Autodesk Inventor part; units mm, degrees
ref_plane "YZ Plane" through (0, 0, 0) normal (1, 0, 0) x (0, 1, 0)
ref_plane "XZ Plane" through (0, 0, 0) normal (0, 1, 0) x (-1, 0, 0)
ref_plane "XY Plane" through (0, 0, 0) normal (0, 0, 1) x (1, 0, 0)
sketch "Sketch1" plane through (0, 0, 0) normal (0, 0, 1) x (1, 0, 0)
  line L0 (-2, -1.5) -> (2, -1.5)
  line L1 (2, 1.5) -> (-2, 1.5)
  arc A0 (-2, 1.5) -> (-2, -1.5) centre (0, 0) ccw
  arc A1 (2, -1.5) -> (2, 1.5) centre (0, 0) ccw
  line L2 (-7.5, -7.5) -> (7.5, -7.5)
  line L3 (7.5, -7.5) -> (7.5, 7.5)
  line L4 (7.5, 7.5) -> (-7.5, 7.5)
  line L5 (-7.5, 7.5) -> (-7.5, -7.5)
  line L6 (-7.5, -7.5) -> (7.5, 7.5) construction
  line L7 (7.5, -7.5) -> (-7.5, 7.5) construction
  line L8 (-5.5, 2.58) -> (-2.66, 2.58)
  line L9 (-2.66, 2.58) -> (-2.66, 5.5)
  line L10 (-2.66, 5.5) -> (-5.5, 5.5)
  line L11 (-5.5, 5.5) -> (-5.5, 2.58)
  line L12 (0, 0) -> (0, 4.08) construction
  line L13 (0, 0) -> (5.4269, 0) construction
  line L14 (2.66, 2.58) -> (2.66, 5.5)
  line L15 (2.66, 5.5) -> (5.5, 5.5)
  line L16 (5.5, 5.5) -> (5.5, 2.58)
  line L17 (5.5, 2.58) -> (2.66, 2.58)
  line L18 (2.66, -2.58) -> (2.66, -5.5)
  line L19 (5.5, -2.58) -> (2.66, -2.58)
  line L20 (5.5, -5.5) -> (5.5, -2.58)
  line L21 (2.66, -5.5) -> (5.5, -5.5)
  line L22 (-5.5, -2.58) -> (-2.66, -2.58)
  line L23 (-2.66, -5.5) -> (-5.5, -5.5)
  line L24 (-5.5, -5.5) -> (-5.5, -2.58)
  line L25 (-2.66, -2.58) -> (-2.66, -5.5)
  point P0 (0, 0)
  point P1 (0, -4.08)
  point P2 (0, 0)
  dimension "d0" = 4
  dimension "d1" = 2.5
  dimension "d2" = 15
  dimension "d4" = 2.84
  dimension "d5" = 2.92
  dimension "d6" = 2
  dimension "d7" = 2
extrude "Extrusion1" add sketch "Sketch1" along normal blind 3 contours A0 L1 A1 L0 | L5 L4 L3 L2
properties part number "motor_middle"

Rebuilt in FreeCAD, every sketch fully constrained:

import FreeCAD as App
import Part
import Sketcher


def add_polygon(sketch, points):
    """Adds a closed chain of lines whose ends are joined by coincident constraints."""
    first, n = sketch.GeometryCount, len(points)
    for a, b in zip(points, points[1:] + points[:1]):
        sketch.addGeometry(Part.LineSegment(App.Vector(*a, 0), App.Vector(*b, 0)), False)
    for i in range(n):
        sketch.addConstraint(Sketcher.Constraint("Coincident", first + i, 2, first + (i + 1) % n, 1))

doc = App.newDocument("Part")
body = doc.addObject("PartDesign::Body", "Body")

# Sketch on XY plane
sketch1 = doc.addObject("Sketcher::SketchObject", "Sketch")
body.addObject(sketch1)
sketch1.AttachmentSupport = (doc.XY_Plane, [""])
sketch1.MapMode = "FlatFace"
add_polygon(sketch1, [(-7.5, 7.5), (-7.5, -7.5), (7.5, -7.5), (7.5, 7.5)])  # lines 0-3
add_polygon(sketch1, [(-5.5, -5.5), (-5.5, -2.58), (-2.66, -2.58), (-2.66, -5.5)])  # lines 4-7
add_polygon(sketch1, [(2.66, -5.5), (2.66, -2.58), (5.5, -2.58), (5.5, -5.5)])  # lines 8-11
add_polygon(sketch1, [(-2.66, 2.58), (-5.5, 2.58), (-5.5, 5.5), (-2.66, 5.5)])  # lines 12-15
add_polygon(sketch1, [(5.5, 2.58), (2.66, 2.58), (2.66, 5.5), (5.5, 5.5)])  # lines 16-19
sketch1.addConstraint([
    Sketcher.Constraint("Vertical", 0),
    Sketcher.Constraint("Horizontal", 1),
    Sketcher.Constraint("Vertical", 2),
    Sketcher.Constraint("Horizontal", 3),
    Sketcher.Constraint("Vertical", 4),
    Sketcher.Constraint("Horizontal", 5),
    Sketcher.Constraint("Vertical", 6),
    Sketcher.Constraint("Horizontal", 7),
    Sketcher.Constraint("Vertical", 8),
    Sketcher.Constraint("Horizontal", 9),
    Sketcher.Constraint("Vertical", 10),
    Sketcher.Constraint("Horizontal", 11),
    Sketcher.Constraint("Horizontal", 12),
    Sketcher.Constraint("Vertical", 13),
    Sketcher.Constraint("Horizontal", 14),
    Sketcher.Constraint("Vertical", 15),
    Sketcher.Constraint("Horizontal", 16),
    Sketcher.Constraint("Vertical", 17),
    Sketcher.Constraint("Horizontal", 18),
    Sketcher.Constraint("Vertical", 19),
    Sketcher.Constraint("Symmetric", 0, 2, 2, 2, -1, 1),
    Sketcher.Constraint("Symmetric", 9, 2, 12, 2, -1, 1),
    Sketcher.Constraint("Symmetric", 11, 2, 14, 2, -1, 1),
    Sketcher.Constraint("Symmetric", 5, 2, 16, 2, -1, 1),
    Sketcher.Constraint("Symmetric", 7, 2, 18, 2, -1, 1),
    Sketcher.Constraint("Symmetric", 5, 2, 8, 2, -2),
    Sketcher.Constraint("Symmetric", 7, 2, 10, 2, -2),
    Sketcher.Constraint("Equal", 3, 0),
    Sketcher.Constraint("DistanceX", 1, 1, 1, 2, 15.0),
    Sketcher.Constraint("DistanceX", 0, 2, 4, 2, 2.0),
    Sketcher.Constraint("DistanceY", 0, 2, 6, 2, 2.0),
    Sketcher.Constraint("DistanceX", 5, 1, 5, 2, 2.84),
    Sketcher.Constraint("DistanceY", 4, 1, 4, 2, 2.92),
])
pad1 = doc.addObject("PartDesign::Pad", "Pad")
body.addObject(pad1)
pad1.Profile = sketch1
pad1.Length = 3

doc.recompute()
